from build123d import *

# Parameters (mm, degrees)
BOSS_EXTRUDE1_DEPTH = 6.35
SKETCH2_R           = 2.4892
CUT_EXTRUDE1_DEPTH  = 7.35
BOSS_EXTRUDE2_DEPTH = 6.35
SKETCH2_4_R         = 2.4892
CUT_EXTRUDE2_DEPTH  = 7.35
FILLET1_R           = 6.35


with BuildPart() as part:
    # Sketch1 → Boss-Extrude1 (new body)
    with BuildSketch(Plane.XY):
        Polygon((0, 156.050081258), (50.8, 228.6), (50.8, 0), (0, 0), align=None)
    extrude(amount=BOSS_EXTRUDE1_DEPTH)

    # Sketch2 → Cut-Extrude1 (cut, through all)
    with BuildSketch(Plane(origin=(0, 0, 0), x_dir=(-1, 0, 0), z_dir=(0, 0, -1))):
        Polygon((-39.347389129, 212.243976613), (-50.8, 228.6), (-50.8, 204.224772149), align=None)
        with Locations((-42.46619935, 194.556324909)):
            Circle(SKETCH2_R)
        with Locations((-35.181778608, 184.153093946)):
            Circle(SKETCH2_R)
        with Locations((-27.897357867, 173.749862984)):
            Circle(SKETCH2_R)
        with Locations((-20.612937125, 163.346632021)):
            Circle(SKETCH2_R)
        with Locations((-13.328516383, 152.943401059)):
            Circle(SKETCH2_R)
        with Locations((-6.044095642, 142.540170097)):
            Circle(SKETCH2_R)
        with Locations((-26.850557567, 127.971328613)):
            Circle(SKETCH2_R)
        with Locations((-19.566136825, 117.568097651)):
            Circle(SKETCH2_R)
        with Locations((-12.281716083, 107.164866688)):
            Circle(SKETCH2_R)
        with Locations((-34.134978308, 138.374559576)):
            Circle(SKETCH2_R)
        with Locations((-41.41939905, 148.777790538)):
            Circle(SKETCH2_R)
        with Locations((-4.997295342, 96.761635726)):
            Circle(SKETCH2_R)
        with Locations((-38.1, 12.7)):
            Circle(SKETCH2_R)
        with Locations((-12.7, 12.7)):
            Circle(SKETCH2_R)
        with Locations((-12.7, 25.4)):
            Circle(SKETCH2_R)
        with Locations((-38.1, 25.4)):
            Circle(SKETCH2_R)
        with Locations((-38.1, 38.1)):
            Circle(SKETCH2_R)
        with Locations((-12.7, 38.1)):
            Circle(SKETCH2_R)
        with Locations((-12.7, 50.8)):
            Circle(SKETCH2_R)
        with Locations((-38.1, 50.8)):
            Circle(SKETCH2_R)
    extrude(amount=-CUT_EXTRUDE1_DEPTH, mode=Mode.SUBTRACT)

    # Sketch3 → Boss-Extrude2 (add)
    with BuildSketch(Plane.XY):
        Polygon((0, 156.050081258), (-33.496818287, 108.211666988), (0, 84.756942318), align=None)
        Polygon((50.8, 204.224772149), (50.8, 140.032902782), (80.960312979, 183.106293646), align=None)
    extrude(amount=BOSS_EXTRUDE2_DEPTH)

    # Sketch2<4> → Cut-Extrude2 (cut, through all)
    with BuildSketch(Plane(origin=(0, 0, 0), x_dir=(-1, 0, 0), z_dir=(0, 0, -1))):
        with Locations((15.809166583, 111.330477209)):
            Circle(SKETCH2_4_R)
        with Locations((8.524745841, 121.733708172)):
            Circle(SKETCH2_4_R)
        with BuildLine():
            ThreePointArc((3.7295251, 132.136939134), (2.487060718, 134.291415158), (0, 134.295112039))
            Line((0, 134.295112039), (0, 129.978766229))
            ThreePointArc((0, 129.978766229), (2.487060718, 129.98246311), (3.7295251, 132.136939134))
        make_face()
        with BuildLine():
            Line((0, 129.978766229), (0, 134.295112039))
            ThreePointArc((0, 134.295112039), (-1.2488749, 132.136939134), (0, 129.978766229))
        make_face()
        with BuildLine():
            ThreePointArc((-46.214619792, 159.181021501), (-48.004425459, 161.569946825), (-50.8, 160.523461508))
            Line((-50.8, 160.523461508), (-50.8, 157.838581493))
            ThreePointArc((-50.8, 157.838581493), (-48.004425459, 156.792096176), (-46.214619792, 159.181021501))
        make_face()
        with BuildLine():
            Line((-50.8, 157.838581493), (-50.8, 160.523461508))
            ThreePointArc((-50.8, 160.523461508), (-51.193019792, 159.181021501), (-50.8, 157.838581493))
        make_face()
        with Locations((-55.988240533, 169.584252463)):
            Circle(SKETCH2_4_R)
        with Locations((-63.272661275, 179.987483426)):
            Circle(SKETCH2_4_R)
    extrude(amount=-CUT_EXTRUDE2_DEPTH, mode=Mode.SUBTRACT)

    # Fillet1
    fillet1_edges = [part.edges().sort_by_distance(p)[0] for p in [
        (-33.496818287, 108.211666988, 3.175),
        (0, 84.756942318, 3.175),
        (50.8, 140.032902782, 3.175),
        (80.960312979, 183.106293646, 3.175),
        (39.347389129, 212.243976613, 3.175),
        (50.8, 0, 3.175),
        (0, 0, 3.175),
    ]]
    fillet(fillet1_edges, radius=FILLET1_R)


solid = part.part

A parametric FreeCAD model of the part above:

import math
import FreeCAD as App
import Part
import Sketcher
Q = App.Units.Quantity


def edges_at(feature, points):
    """Names of the edges that pass closest to the given points."""
    edges = feature.Shape.Edges
    near = lambda p: min(range(len(edges)), key=lambda i: edges[i].distToShape(Part.Vertex(*p))[0])
    return sorted({f"Edge{near(p) + 1}" for p in points})


def add_polygon(sketch, points):
    """Adds a closed chain of lines whose ends are joined by coincident constraints."""
    first, n = sketch.GeometryCount, len(points)
    for a, b in zip(points, points[1:] + points[:1]):
        sketch.addGeometry(Part.LineSegment(App.Vector(*a, 0), App.Vector(*b, 0)), False)
    for i in range(n):
        sketch.addConstraint(Sketcher.Constraint("Coincident", first + i, 2, first + (i + 1) % n, 1))

doc = App.newDocument("Part")
params = doc.addObject("Spreadsheet::Sheet", "Params")
for row, (alias, value) in enumerate([
    ("sketch1_width", "2 in"),
    ("sketch1_height", "9 in"),
    ("pad1_length", "0.25 in"),
    ("sketch2_diameter", "0.196 in"),
    ("pad2_length", "0.25 in"),
    ("sketch4_diameter", "0.196 in"),
    ("fillet_radius", "0.25 in"),
], start=1):
    params.set(f"A{row}", alias)
    params.set(f"B{row}", "=" + value)
    params.setAlias(f"B{row}", alias)

body = doc.addObject("PartDesign::Body", "Body")

# Sketch on XY plane
sketch1 = doc.addObject("Sketcher::SketchObject", "Sketch")
body.addObject(sketch1)
sketch1.AttachmentSupport = (doc.XY_Plane, [""])
sketch1.MapMode = "FlatFace"
add_polygon(sketch1, [(51, 229), (0, 156), (0, 0), (51, 0)])  # lines 0-3
sketch1.addConstraint(Sketcher.Constraint("Vertical", 1))
sketch1.addConstraint(Sketcher.Constraint("Horizontal", 2))
sketch1.addConstraint(Sketcher.Constraint("Vertical", 3))
sketch1.addConstraint(Sketcher.Constraint("Coincident", 1, 2, -1, 1))
sketch1.addConstraint(Sketcher.Constraint("DistanceX", 2, 1, 2, 2, Q("2 in")))
sketch1.addConstraint(Sketcher.Constraint("DistanceY", 3, 1, 3, 2, Q("9 in")))
sketch1.addConstraint(Sketcher.Constraint("Angle", 0, Q("-125 deg")))
sketch1.setExpression("Constraints[8]", "Params.sketch1_width")
sketch1.setExpression("Constraints[9]", "Params.sketch1_height")
pad1 = doc.addObject("PartDesign::Pad", "Pad")
body.addObject(pad1)
pad1.Profile = sketch1
pad1.setExpression("Length", "Params.pad1_length")

# Sketch on XY plane
sketch2 = doc.addObject("Sketcher::SketchObject", "Sketch001")
body.addObject(sketch2)
sketch2.AttachmentSupport = (doc.XY_Plane, [""])
sketch2.MapMode = "FlatFace"
add_polygon(sketch2, [(39.3, 212.2), (50.8, 228.6), (50.8, 204.2)])  # lines 0-2
sketch2.addGeometry(Part.Circle(App.Vector(42.5, 194.6, 0), App.Vector(0, 0, 1), 2.5), False)  # 3
sketch2.addGeometry(Part.Circle(App.Vector(35.2, 184.2, 0), App.Vector(0, 0, 1), 2.5), False)  # 4
sketch2.addGeometry(Part.Circle(App.Vector(27.9, 173.7, 0), App.Vector(0, 0, 1), 2.5), False)  # 5
sketch2.addGeometry(Part.Circle(App.Vector(20.6, 163.3, 0), App.Vector(0, 0, 1), 2.5), False)  # 6
sketch2.addGeometry(Part.Circle(App.Vector(13.3, 152.9, 0), App.Vector(0, 0, 1), 2.5), False)  # 7
sketch2.addGeometry(Part.Circle(App.Vector(6, 142.5, 0), App.Vector(0, 0, 1), 2.5), False)  # 8
sketch2.addGeometry(Part.Circle(App.Vector(26.9, 128, 0), App.Vector(0, 0, 1), 2.5), False)  # 9
sketch2.addGeometry(Part.Circle(App.Vector(19.6, 117.6, 0), App.Vector(0, 0, 1), 2.5), False)  # 10
sketch2.addGeometry(Part.Circle(App.Vector(12.3, 107.2, 0), App.Vector(0, 0, 1), 2.5), False)  # 11
sketch2.addGeometry(Part.Circle(App.Vector(34.1, 138.4, 0), App.Vector(0, 0, 1), 2.5), False)  # 12
sketch2.addGeometry(Part.Circle(App.Vector(41.4, 148.8, 0), App.Vector(0, 0, 1), 2.5), False)  # 13
sketch2.addGeometry(Part.Circle(App.Vector(5, 96.8, 0), App.Vector(0, 0, 1), 2.5), False)  # 14
sketch2.addGeometry(Part.Circle(App.Vector(38.1, 12.7, 0), App.Vector(0, 0, 1), 2.5), False)  # 15
sketch2.addGeometry(Part.Circle(App.Vector(12.7, 12.7, 0), App.Vector(0, 0, 1), 2.5), False)  # 16
sketch2.addGeometry(Part.Circle(App.Vector(12.7, 25.4, 0), App.Vector(0, 0, 1), 2.5), False)  # 17
sketch2.addGeometry(Part.Circle(App.Vector(38.1, 25.4, 0), App.Vector(0, 0, 1), 2.5), False)  # 18
sketch2.addGeometry(Part.Circle(App.Vector(38.1, 38.1, 0), App.Vector(0, 0, 1), 2.5), False)  # 19
sketch2.addGeometry(Part.Circle(App.Vector(12.7, 38.1, 0), App.Vector(0, 0, 1), 2.5), False)  # 20
sketch2.addGeometry(Part.Circle(App.Vector(12.7, 50.8, 0), App.Vector(0, 0, 1), 2.5), False)  # 21
sketch2.addGeometry(Part.Circle(App.Vector(38.1, 50.8, 0), App.Vector(0, 0, 1), 2.5), False)  # 22
sketch2.addConstraint(Sketcher.Constraint("Vertical", 1))
sketch2.addConstraint(Sketcher.Constraint("Equal", 3, 4))
sketch2.addConstraint(Sketcher.Constraint("Equal", 4, 5))
sketch2.addConstraint(Sketcher.Constraint("Equal", 5, 6))
sketch2.addConstraint(Sketcher.Constraint("Equal", 6, 7))
sketch2.addConstraint(Sketcher.Constraint("Equal", 7, 8))
sketch2.addConstraint(Sketcher.Constraint("Equal", 8, 9))
sketch2.addConstraint(Sketcher.Constraint("Equal", 9, 10))
sketch2.addConstraint(Sketcher.Constraint("Equal", 10, 11))
sketch2.addConstraint(Sketcher.Constraint("Equal", 11, 12))
sketch2.addConstraint(Sketcher.Constraint("Equal", 12, 13))
sketch2.addConstraint(Sketcher.Constraint("Equal", 13, 14))
sketch2.addConstraint(Sketcher.Constraint("Equal", 14, 15))
sketch2.addConstraint(Sketcher.Constraint("Equal", 15, 16))
sketch2.addConstraint(Sketcher.Constraint("Equal", 16, 17))
sketch2.addConstraint(Sketcher.Constraint("Equal", 17, 18))
sketch2.addConstraint(Sketcher.Constraint("Equal", 18, 19))
sketch2.addConstraint(Sketcher.Constraint("Equal", 19, 20))
sketch2.addConstraint(Sketcher.Constraint("Equal", 20, 21))
sketch2.addConstraint(Sketcher.Constraint("Equal", 21, 22))
sketch2.addConstraint(Sketcher.Constraint("Perpendicular", 0, 2))
sketch2.addConstraint(Sketcher.Constraint("Horizontal", 15, 3, 16, 3))
sketch2.addConstraint(Sketcher.Constraint("Horizontal", 17, 3, 18, 3))
sketch2.addConstraint(Sketcher.Constraint("Horizontal", 19, 3, 20, 3))
sketch2.addConstraint(Sketcher.Constraint("Horizontal", 21, 3, 22, 3))
sketch2.addConstraint(Sketcher.Constraint("Vertical", 16, 3, 17, 3))
sketch2.addConstraint(Sketcher.Constraint("Vertical", 15, 3, 18, 3))
sketch2.addConstraint(Sketcher.Constraint("Vertical", 18, 3, 19, 3))
sketch2.addConstraint(Sketcher.Constraint("Vertical", 17, 3, 20, 3))
sketch2.addConstraint(Sketcher.Constraint("Vertical", 20, 3, 21, 3))
sketch2.addConstraint(Sketcher.Constraint("Vertical", 19, 3, 22, 3))
sketch2.addConstraint(Sketcher.Constraint("Diameter", 3, Q("0.196 in")))
sketch2.addConstraint(Sketcher.Constraint("DistanceY", -1, 1, 17, 3, Q("1 in")))
sketch2.addConstraint(Sketcher.Constraint("DistanceY", -1, 1, 21, 3, Q("2 in")))
sketch2.addConstraint(Sketcher.Constraint("DistanceX", -1, 1, 0, 2, Q("2 in")))
sketch2.addConstraint(Sketcher.Constraint("DistanceY", -1, 1, 0, 2, Q("9 in")))
sketch2.addConstraint(Sketcher.Constraint("Angle", 0, Q("55 deg")))
sketch2.addConstraint(Sketcher.Constraint("DistanceX", 16, 3, 15, 3, Q("1 in")))
sketch2.addConstraint(Sketcher.Constraint("DistanceY", 15, 3, 19, 3, Q("1 in")))
sketch2.addConstraint(Sketcher.Constraint("DistanceX", -1, 1, 15, 3, Q("1.5 in")))
sketch2.addConstraint(Sketcher.Constraint("DistanceY", -1, 1, 15, 3, Q("0.5 in")))
sketch2.addConstraint(Sketcher.Constraint("DistanceX", -1, 1, 3, 3, Q("42.466199 mm")))
sketch2.addConstraint(Sketcher.Constraint("DistanceY", -1, 1, 7, 3, Q("152.943401 mm")))
sketch2.addConstraint(Sketcher.Constraint("DistanceX", -1, 1, 13, 3, Q("41.419399 mm")))
sketch2.addConstraint(Sketcher.Constraint("DistanceX", 9, 3, 5, 3, Q("1.0468 mm")))
sketch2.addConstraint(Sketcher.Constraint("DistanceX", 10, 3, 6, 3, Q("1.0468 mm")))
sketch2.addConstraint(Sketcher.Constraint("DistanceX", 11, 3, 7, 3, Q("1.0468 mm")))
sketch2.addConstraint(Sketcher.Constraint("DistanceX", 14, 3, 8, 3, Q("1.0468 mm")))
sketch2.addConstraint(Sketcher.Constraint("DistanceY", 1, 2, 1, 1, Q("24.375228 mm")))
sketch2.addConstraint(Sketcher.Constraint("DistanceX", -1, 1, 4, 3, Q("35.181779 mm")))
sketch2.addConstraint(Sketcher.Constraint("DistanceY", -1, 1, 8, 3, Q("142.54017 mm")))
sketch2.addConstraint(Sketcher.Constraint("DistanceY", -1, 1, 9, 3, Q("127.971329 mm")))
sketch2.addConstraint(Sketcher.Constraint("DistanceX", -1, 1, 12, 3, Q("34.134978 mm")))
sketch2.addConstraint(Sketcher.Constraint("DistanceY", -1, 1, 12, 3, Q("138.37456 mm")))
sketch2.addConstraint(Sketcher.Constraint("DistanceY", -1, 1, 13, 3, Q("148.777791 mm")))
sketch2.addConstraint(Sketcher.Constraint("DistanceY", 4, 3, 3, 3, Q("10.403231 mm")))
sketch2.addConstraint(Sketcher.Constraint("DistanceX", 5, 3, 4, 3, Q("7.284421 mm")))
sketch2.addConstraint(Sketcher.Constraint("DistanceY", 5, 3, 4, 3, Q("10.403231 mm")))
sketch2.addConstraint(Sketcher.Constraint("DistanceX", 6, 3, 5, 3, Q("7.284421 mm")))
sketch2.addConstraint(Sketcher.Constraint("DistanceY", 6, 3, 5, 3, Q("10.403231 mm")))
sketch2.addConstraint(Sketcher.Constraint("DistanceX", 7, 3, 6, 3, Q("7.284421 mm")))
sketch2.addConstraint(Sketcher.Constraint("DistanceY", 7, 3, 6, 3, Q("10.403231 mm")))
sketch2.addConstraint(Sketcher.Constraint("DistanceX", 8, 3, 7, 3, Q("7.284421 mm")))
sketch2.addConstraint(Sketcher.Constraint("DistanceY", 10, 3, 9, 3, Q("10.403231 mm")))
sketch2.addConstraint(Sketcher.Constraint("DistanceY", 11, 3, 10, 3, Q("10.403231 mm")))
sketch2.addConstraint(Sketcher.Constraint("DistanceY", 14, 3, 11, 3, Q("10.403231 mm")))
sketch2.setExpression("Constraints[34]", "Params.sketch2_diameter")
pocket1 = doc.addObject("PartDesign::Pocket", "Pocket")
body.addObject(pocket1)
pocket1.Profile = sketch2
pocket1.Type = "ThroughAll"
pocket1.Reversed = True

# Sketch on XY plane
sketch3 = doc.addObject("Sketcher::SketchObject", "Sketch002")
body.addObject(sketch3)
sketch3.AttachmentSupport = (doc.XY_Plane, [""])
sketch3.MapMode = "FlatFace"
add_polygon(sketch3, [(0, 156), (-33, 108), (0, 85)])  # lines 0-2
add_polygon(sketch3, [(51, 204), (51, 140), (81, 183)])  # lines 3-5
sketch3.addConstraint(Sketcher.Constraint("Vertical", 2))
sketch3.addConstraint(Sketcher.Constraint("Vertical", 3))
sketch3.addConstraint(Sketcher.Constraint("PointOnObject", 1, 2, -2))
sketch3.addConstraint(Sketcher.Constraint("Perpendicular", 0, 1))
sketch3.addConstraint(Sketcher.Constraint("Perpendicular", 1, 4))
sketch3.addConstraint(Sketcher.Constraint("Perpendicular", 4, 5))
sketch3.addConstraint(Sketcher.Constraint("DistanceX", -1, 1, 3, 2, Q("2 in")))
sketch3.addConstraint(Sketcher.Constraint("Angle", 0, Q("-125 deg")))
sketch3.addConstraint(Sketcher.Constraint("Distance", 4, Q("52.582901 mm")))
sketch3.addConstraint(Sketcher.Constraint("DistanceY", 2, 1, 2, 2, Q("71.293139 mm")))
sketch3.addConstraint(Sketcher.Constraint("DistanceY", -1, 1, 2, 2, Q("156.050081 mm")))
sketch3.addConstraint(Sketcher.Constraint("DistanceY", 3, 2, 2, 2, Q("16.017178 mm")))
pad2 = doc.addObject("PartDesign::Pad", "Pad001")
body.addObject(pad2)
pad2.Profile = sketch3
pad2.setExpression("Length", "Params.pad2_length")

# Sketch on XY plane
sketch4 = doc.addObject("Sketcher::SketchObject", "Sketch003")
body.addObject(sketch4)
sketch4.AttachmentSupport = (doc.XY_Plane, [""])
sketch4.MapMode = "FlatFace"
sketch4.addGeometry(Part.Circle(App.Vector(-15.8, 111.3, 0), App.Vector(0, 0, 1), 2.5), False)
sketch4.addGeometry(Part.Circle(App.Vector(-8.5, 121.7, 0), App.Vector(0, 0, 1), 2.5), False)
sketch4.addGeometry(Part.ArcOfCircle(Part.Circle(App.Vector(-1.2, 132.1, 0), App.Vector(0, 0, 1), 2.5), math.radians(60), math.radians(180)), False)
sketch4.addGeometry(Part.ArcOfCircle(Part.Circle(App.Vector(-1.2, 132.1, 0), App.Vector(0, 0, 1), 2.5), math.radians(-60), math.radians(60)), False)
sketch4.addGeometry(Part.ArcOfCircle(Part.Circle(App.Vector(-1.2, 132.1, 0), App.Vector(0, 0, 1), 2.5), math.radians(180), math.radians(300)), False)
sketch4.addGeometry(Part.ArcOfCircle(Part.Circle(App.Vector(48.7, 159.2, 0), App.Vector(0, 0, 1), 2.5), math.radians(33), math.radians(180)), False)
sketch4.addGeometry(Part.ArcOfCircle(Part.Circle(App.Vector(48.7, 159.2, 0), App.Vector(0, 0, 1), 2.5), math.radians(-33), math.radians(33)), False)
sketch4.addGeometry(Part.ArcOfCircle(Part.Circle(App.Vector(48.7, 159.2, 0), App.Vector(0, 0, 1), 2.5), math.radians(180), math.radians(327)), False)
sketch4.addGeometry(Part.Circle(App.Vector(56, 169.6, 0), App.Vector(0, 0, 1), 2.5), False)
sketch4.addGeometry(Part.Circle(App.Vector(63.3, 180, 0), App.Vector(0, 0, 1), 2.5), False)
sketch4.addConstraint(Sketcher.Constraint("Tangent", 2, 1, 3, 2))
sketch4.addConstraint(Sketcher.Constraint("Tangent", 3, 1, 4, 2))
sketch4.addConstraint(Sketcher.Constraint("Tangent", 4, 1, 2, 2))
sketch4.addConstraint(Sketcher.Constraint("Tangent", 5, 1, 6, 2))
sketch4.addConstraint(Sketcher.Constraint("Tangent", 6, 1, 7, 2))
sketch4.addConstraint(Sketcher.Constraint("Tangent", 7, 1, 5, 2))
sketch4.addConstraint(Sketcher.Constraint("Equal", 0, 1))
sketch4.addConstraint(Sketcher.Constraint("Equal", 1, 2))
sketch4.addConstraint(Sketcher.Constraint("Equal", 4, 5))
sketch4.addConstraint(Sketcher.Constraint("Equal", 7, 8))
sketch4.addConstraint(Sketcher.Constraint("Equal", 8, 9))
sketch4.addConstraint(Sketcher.Constraint("PointOnObject", 2, 1, -2))
sketch4.addConstraint(Sketcher.Constraint("PointOnObject", 3, 1, -2))
sketch4.addConstraint(Sketcher.Constraint("Horizontal", 3, 3, 4, 1))
sketch4.addConstraint(Sketcher.Constraint("Horizontal", 6, 3, 7, 1))
sketch4.addConstraint(Sketcher.Constraint("Vertical", 5, 1, 6, 1))
sketch4.addConstraint(Sketcher.Constraint("Diameter", 0, Q("0.196 in")))
sketch4.addConstraint(Sketcher.Constraint("DistanceX", -1, 1, 5, 1, Q("2 in")))
sketch4.addConstraint(Sketcher.Constraint("DistanceY", 5, 1, 9, 3, Q("0.7663001 in")))
sketch4.addConstraint(Sketcher.Constraint("DistanceY", -1, 1, 1, 3, Q("121.733708 mm")))
sketch4.addConstraint(Sketcher.Constraint("DistanceY", -1, 1, 2, 3, Q("132.136939 mm")))
sketch4.addConstraint(Sketcher.Constraint("DistanceX", -1, 1, 5, 3, Q("48.70382 mm")))
sketch4.addConstraint(Sketcher.Constraint("DistanceY", -1, 1, 5, 3, Q("159.181022 mm")))
sketch4.addConstraint(Sketcher.Constraint("DistanceX", -1, 1, 8, 3, Q("55.988241 mm")))
sketch4.addConstraint(Sketcher.Constraint("DistanceX", -1, 1, 9, 3, Q("63.272661 mm")))
sketch4.addConstraint(Sketcher.Constraint("DistanceX", 0, 3, 1, 3, Q("7.284421 mm")))
sketch4.addConstraint(Sketcher.Constraint("DistanceY", 0, 3, 1, 3, Q("10.403231 mm")))
sketch4.addConstraint(Sketcher.Constraint("DistanceX", 1, 3, 2, 3, Q("7.284421 mm")))
sketch4.addConstraint(Sketcher.Constraint("DistanceY", 6, 3, 8, 3, Q("10.403231 mm")))
sketch4.addConstraint(Sketcher.Constraint("DistanceY", 1, 3, 3, 1, Q("8.245058 mm")))
sketch4.setExpression("Constraints[16]", "Params.sketch4_diameter")
pocket2 = doc.addObject("PartDesign::Pocket", "Pocket001")
body.addObject(pocket2)
pocket2.Profile = sketch4
pocket2.Type = "ThroughAll"
pocket2.Reversed = True
doc.recompute()

fillet = doc.addObject("PartDesign::Fillet", "Fillet")
body.addObject(fillet)
fillet.Base = (pocket2, edges_at(pocket2, [
    (-33.497, 108.212, 3.175),
    (0, 84.757, 3.175),
    (50.8, 140.033, 3.175),
    (80.96, 183.106, 3.175),
    (39.347, 212.244, 3.175),
    (50.8, 0, 3.175),
    (0, 0, 3.175),
]))
fillet.setExpression("Radius", "Params.fillet_radius")

doc.recompute()
